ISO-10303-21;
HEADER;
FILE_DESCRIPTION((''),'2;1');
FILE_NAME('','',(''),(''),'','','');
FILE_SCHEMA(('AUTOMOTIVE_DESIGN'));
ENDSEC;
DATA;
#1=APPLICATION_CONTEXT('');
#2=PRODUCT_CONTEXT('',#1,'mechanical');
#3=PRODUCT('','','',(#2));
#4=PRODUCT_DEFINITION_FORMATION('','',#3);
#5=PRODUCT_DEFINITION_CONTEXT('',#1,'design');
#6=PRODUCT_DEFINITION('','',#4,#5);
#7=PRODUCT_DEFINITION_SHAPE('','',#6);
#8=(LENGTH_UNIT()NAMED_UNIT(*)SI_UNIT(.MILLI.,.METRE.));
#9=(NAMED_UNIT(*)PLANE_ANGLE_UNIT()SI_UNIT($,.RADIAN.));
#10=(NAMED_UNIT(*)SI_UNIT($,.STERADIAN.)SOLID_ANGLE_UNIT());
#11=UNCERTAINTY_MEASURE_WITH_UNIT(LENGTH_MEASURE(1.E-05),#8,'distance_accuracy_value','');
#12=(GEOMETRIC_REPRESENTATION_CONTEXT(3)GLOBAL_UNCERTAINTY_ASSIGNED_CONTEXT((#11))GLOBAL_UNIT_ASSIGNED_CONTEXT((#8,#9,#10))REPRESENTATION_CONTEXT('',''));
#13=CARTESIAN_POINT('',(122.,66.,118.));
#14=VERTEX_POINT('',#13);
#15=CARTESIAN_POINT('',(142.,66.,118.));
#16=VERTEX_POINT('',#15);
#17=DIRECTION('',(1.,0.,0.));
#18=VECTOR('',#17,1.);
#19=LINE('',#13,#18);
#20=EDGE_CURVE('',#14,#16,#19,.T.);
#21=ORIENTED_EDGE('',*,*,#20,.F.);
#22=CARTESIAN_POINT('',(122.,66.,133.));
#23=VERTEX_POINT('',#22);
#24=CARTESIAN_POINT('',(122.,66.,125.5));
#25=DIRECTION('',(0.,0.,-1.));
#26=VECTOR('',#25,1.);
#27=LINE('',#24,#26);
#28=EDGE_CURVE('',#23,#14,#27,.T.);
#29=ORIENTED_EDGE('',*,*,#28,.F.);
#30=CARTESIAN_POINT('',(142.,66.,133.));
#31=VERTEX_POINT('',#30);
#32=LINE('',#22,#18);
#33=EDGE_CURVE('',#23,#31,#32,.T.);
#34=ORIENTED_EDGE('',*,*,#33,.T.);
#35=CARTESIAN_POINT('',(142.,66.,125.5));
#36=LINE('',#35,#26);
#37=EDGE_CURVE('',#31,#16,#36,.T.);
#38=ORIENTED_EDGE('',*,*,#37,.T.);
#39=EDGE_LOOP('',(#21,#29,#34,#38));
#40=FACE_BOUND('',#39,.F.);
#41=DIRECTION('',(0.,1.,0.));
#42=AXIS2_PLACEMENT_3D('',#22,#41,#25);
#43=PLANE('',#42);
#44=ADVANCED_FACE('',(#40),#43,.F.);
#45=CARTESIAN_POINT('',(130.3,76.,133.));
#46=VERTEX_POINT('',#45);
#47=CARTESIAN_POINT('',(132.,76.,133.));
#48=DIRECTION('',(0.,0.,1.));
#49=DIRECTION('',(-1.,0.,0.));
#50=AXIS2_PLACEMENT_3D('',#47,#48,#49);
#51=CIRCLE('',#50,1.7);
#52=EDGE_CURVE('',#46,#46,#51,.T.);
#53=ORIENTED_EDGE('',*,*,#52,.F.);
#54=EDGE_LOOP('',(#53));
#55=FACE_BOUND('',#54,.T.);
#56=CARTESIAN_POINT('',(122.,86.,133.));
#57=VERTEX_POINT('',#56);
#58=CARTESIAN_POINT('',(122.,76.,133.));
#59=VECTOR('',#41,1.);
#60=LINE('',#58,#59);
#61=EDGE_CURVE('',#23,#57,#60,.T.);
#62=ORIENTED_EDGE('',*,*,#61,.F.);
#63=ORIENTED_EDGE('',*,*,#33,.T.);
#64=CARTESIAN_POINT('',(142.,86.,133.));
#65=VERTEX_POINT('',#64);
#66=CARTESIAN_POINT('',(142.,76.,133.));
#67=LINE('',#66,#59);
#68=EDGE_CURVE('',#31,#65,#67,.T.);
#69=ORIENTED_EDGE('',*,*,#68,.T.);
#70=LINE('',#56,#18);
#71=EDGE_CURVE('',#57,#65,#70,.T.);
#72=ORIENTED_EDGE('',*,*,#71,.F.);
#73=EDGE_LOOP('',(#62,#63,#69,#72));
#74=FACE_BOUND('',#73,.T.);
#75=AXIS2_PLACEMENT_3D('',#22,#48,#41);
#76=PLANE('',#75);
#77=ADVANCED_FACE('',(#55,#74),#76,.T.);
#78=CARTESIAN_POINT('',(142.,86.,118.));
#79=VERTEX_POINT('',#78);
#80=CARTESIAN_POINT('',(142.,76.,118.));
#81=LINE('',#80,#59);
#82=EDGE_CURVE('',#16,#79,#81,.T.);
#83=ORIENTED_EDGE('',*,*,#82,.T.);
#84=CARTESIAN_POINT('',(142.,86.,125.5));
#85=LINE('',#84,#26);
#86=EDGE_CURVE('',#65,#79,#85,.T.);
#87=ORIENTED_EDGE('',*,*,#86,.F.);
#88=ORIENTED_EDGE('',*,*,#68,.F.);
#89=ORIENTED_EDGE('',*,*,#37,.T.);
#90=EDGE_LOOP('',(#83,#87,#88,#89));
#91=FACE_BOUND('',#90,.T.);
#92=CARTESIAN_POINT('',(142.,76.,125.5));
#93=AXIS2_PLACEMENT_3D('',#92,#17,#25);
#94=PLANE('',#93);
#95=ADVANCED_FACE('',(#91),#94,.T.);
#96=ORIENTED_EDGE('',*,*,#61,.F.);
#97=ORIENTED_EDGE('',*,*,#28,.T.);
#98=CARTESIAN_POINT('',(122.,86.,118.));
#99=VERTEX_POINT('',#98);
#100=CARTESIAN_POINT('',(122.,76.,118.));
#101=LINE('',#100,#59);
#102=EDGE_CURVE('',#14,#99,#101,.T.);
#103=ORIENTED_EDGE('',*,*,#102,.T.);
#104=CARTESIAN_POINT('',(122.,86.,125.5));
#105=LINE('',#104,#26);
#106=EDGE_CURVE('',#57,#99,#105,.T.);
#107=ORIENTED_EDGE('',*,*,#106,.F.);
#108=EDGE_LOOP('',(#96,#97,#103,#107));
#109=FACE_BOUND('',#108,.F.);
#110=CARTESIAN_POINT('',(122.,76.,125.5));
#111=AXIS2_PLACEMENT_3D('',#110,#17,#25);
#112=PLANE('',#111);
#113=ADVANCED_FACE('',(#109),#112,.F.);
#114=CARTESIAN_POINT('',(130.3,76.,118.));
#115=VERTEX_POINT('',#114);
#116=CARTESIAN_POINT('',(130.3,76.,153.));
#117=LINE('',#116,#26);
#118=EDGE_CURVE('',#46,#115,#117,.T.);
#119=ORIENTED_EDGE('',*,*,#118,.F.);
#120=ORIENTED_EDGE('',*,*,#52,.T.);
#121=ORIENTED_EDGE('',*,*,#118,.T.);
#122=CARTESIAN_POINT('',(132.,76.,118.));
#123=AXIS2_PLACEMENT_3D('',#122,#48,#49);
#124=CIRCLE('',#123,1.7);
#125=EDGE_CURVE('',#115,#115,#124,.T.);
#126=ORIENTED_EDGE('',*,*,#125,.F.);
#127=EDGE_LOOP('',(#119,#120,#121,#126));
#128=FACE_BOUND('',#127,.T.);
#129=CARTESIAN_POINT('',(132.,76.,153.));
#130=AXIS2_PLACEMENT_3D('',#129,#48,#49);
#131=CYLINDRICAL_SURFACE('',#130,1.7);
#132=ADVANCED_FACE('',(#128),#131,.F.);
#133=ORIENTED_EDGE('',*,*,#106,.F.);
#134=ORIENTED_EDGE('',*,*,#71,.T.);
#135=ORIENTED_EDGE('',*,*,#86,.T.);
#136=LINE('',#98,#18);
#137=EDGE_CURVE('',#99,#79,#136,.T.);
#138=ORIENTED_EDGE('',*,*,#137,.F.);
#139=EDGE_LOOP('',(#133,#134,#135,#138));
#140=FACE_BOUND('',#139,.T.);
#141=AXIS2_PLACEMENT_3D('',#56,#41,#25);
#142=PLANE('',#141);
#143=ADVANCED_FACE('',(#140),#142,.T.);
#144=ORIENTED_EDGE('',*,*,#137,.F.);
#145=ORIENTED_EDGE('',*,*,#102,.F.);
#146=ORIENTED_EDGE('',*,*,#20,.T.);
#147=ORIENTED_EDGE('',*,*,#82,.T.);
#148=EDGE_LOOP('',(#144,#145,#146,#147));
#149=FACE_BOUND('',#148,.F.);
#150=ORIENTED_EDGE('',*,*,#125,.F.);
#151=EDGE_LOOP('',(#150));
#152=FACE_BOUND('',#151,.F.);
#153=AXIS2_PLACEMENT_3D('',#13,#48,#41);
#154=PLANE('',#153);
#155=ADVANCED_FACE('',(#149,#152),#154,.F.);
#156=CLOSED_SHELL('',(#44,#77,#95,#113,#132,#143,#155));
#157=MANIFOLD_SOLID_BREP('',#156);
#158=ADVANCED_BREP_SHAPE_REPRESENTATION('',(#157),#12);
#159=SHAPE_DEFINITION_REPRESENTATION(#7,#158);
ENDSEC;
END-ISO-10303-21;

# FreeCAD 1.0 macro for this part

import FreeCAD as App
import Part
import Sketcher
from FreeCAD import Vector
Q = App.Units.Quantity


def add_polygon(sketch, points):
    """Adds a closed chain of lines whose ends are joined by coincident constraints."""
    first, n = sketch.GeometryCount, len(points)
    for a, b in zip(points, points[1:] + points[:1]):
        sketch.addGeometry(Part.LineSegment(App.Vector(*a, 0), App.Vector(*b, 0)), False)
    for i in range(n):
        sketch.addConstraint(Sketcher.Constraint("Coincident", first + i, 2, first + (i + 1) % n, 1))

doc = App.newDocument("Part")
body = doc.addObject("PartDesign::Body", "Body")

sketch1 = body.newObject("Sketcher::SketchObject", "Sketch")
sketch1.AttachmentSupport = (doc.getObject("XY_Plane"), [""])
sketch1.MapMode = "FlatFace"
sketch1.addGeometry(Part.Circle(Vector(0, 0, 0), Vector(0, 0, 1), 1.7), False)
sketch1.addConstraint([
    Sketcher.Constraint("Coincident", 0, 3, -1, 1),
    Sketcher.Constraint("Diameter", 0, Q("3.4 mm")),
])
pad1 = body.newObject("PartDesign::Pad", "Pad")
pad1.Profile = sketch1
pad1.Length = 80
body2 = doc.addObject("PartDesign::Body", "Body001")
doc.recompute()

body.Placement = App.Placement(Vector(0, 0, 0), App.Rotation(Vector(0, 1, 0), 90))
boolean = body2.newObject("PartDesign::Boolean", "Boolean")
boolean.Type = "Fuse"
boolean.addObjects([body])
body3 = doc.addObject("PartDesign::Body", "Body002")
doc.recompute()

body2.Placement = App.Placement(Vector(-20, 10, 10), App.Rotation(Vector(0, 0, 1), 0))
boolean2 = body3.newObject("PartDesign::Boolean", "Boolean001")
boolean2.Type = "Fuse"
boolean2.addObjects([body2])
body4 = doc.addObject("PartDesign::Body", "Body003")

sketch2 = body4.newObject("Sketcher::SketchObject", "Sketch001")
sketch2.AttachmentSupport = (doc.getObject("XY_Plane003"), [""])
sketch2.MapMode = "FlatFace"
add_polygon(sketch2, [(0, 20), (0, 0), (15, 0), (15, 20)])
sketch2.addConstraint([
    Sketcher.Constraint("Vertical", 0),
    Sketcher.Constraint("Horizontal", 1),
    Sketcher.Constraint("Vertical", 2),
    Sketcher.Constraint("Horizontal", 3),
    Sketcher.Constraint("Coincident", 0, 2, -1, 1),
    Sketcher.Constraint("DistanceX", 1, 1, 1, 2, Q("15 mm")),
    Sketcher.Constraint("DistanceY", 0, 2, 0, 1, Q("20 mm")),
])
pad2 = body4.newObject("PartDesign::Pad", "Pad001")
pad2.Profile = sketch2
pad2.Length = 20
doc.recompute()

boolean3 = body4.newObject("PartDesign::Boolean", "Boolean002")
boolean3.Type = "Cut"
boolean3.addObjects([body3])
body5 = doc.addObject("PartDesign::Body", "Body004")
doc.recompute()

body4.Placement = App.Placement(Vector(0, 0, 0), App.Rotation(Vector(0, 1, 0), 90))
boolean4 = body5.newObject("PartDesign::Boolean", "Boolean003")
boolean4.Type = "Fuse"
boolean4.addObjects([body4])
body6 = doc.addObject("PartDesign::Body", "Body005")
doc.recompute()

body5.Placement = App.Placement(Vector(122, 66, 133), App.Rotation(Vector(0, 0, 1), 0))
boolean5 = body6.newObject("PartDesign::Boolean", "Boolean004")
boolean5.Type = "Fuse"
boolean5.addObjects([body5])

doc.recompute()
